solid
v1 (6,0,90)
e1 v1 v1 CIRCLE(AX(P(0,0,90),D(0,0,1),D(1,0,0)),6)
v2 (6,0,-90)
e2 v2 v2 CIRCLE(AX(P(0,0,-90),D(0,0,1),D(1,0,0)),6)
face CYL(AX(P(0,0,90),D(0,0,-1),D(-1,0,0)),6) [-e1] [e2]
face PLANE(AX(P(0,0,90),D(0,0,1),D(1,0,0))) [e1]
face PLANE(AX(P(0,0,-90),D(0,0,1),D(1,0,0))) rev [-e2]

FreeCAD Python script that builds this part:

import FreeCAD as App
import Part
import Sketcher

V = App.Vector
Q = App.Units.Quantity

doc = App.newDocument("Part")
body = doc.addObject("PartDesign::Body", "Body")

sketch1 = doc.addObject("Sketcher::SketchObject", "Sketch")
body.addObject(sketch1)
sketch1.AttachmentSupport = (doc.XY_Plane, [""])
sketch1.MapMode = "FlatFace"
sketch1.addGeometry(Part.Circle(V(0, 0, 0), V(0, 0, 1), 6), False)
sketch1.addConstraint([
    Sketcher.Constraint("Coincident", 0, 3, -1, 1),
    Sketcher.Constraint("Diameter", 0, Q("12 mm")),
])
pad1 = doc.addObject("PartDesign::Pad", "Pad")
body.addObject(pad1)
pad1.Profile = sketch1
pad1.Length = 180
pad1.Midplane = True

doc.recompute()
